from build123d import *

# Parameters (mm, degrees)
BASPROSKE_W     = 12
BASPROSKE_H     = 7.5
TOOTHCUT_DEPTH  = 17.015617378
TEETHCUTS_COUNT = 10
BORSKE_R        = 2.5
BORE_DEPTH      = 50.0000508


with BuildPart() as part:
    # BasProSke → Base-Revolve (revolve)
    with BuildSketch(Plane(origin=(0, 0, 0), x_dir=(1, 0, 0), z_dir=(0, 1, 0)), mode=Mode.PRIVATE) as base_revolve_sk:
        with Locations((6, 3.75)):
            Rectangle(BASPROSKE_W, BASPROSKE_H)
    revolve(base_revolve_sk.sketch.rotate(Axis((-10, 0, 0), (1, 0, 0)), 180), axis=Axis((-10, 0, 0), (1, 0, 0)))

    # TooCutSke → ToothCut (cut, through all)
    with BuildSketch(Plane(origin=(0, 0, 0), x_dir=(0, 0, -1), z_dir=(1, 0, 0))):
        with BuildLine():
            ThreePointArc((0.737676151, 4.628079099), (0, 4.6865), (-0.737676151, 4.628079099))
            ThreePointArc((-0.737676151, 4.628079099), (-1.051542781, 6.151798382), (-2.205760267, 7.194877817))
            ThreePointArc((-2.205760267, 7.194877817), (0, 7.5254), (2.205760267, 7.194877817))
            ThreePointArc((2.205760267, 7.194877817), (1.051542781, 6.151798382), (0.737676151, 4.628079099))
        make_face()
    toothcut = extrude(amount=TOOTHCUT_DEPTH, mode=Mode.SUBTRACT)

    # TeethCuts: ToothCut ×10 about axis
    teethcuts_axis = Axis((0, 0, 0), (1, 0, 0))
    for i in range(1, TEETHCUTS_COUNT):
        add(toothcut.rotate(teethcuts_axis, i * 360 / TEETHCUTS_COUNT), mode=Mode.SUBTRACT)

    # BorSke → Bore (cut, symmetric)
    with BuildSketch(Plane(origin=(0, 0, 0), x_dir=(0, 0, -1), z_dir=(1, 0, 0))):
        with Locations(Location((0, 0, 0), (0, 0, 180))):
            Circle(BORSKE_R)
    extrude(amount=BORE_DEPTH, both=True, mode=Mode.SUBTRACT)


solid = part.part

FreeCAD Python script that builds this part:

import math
import FreeCAD as App
import Part
import Sketcher

doc = App.newDocument("Part")
body = doc.addObject("PartDesign::Body", "Body")

sketch1 = doc.addObject("Sketcher::SketchObject", "Sketch")
body.addObject(sketch1)
sketch1.AttachmentSupport = (doc.XZ_Plane, [""])
sketch1.MapMode = "FlatFace"
sketch1.addGeometry(Part.LineSegment(App.Vector(0, -8, 0), App.Vector(0, 0, 0)), False)
sketch1.addGeometry(Part.LineSegment(App.Vector(0, 0, 0), App.Vector(12, 0, 0)), False)
sketch1.addGeometry(Part.LineSegment(App.Vector(12, 0, 0), App.Vector(12, -8, 0)), False)
sketch1.addGeometry(Part.LineSegment(App.Vector(12, -8, 0), App.Vector(0, -8, 0)), False)
sketch1.addConstraint(Sketcher.Constraint("Coincident", 0, 2, 1, 1))
sketch1.addConstraint(Sketcher.Constraint("Coincident", 1, 2, 2, 1))
sketch1.addConstraint(Sketcher.Constraint("Coincident", 2, 2, 3, 1))
sketch1.addConstraint(Sketcher.Constraint("Coincident", 3, 2, 0, 1))
sketch1.addConstraint(Sketcher.Constraint("Vertical", 0))
sketch1.addConstraint(Sketcher.Constraint("Horizontal", 1))
sketch1.addConstraint(Sketcher.Constraint("Vertical", 2))
sketch1.addConstraint(Sketcher.Constraint("Horizontal", 3))
sketch1.addConstraint(Sketcher.Constraint("Coincident", 0, 2, -1, 1))
sketch1.addConstraint(Sketcher.Constraint("DistanceX", 1, 1, 1, 2, 12.0))
sketch1.addConstraint(Sketcher.Constraint("DistanceY", 0, 1, 0, 2, 7.5))
revolution = doc.addObject("PartDesign::Revolution", "Revolution")
body.addObject(revolution)
revolution.Profile = sketch1
revolution.ReferenceAxis = (sketch1, ["H_Axis"])
revolution.Angle = 360

sketch2 = doc.addObject("Sketcher::SketchObject", "Sketch001")
body.addObject(sketch2)
sketch2.AttachmentSupport = (doc.YZ_Plane, [""])
sketch2.MapMode = "FlatFace"
sketch2.addGeometry(Part.ArcOfCircle(Part.Circle(App.Vector(0, 0, 0), App.Vector(0, 0, 1), 4.7), math.radians(-9.06), math.radians(9.06)), False)
sketch2.addGeometry(Part.ArcOfCircle(Part.Circle(App.Vector(4.9, -3.2, 0), App.Vector(0, 0, 1), 2.5), math.radians(24), math.radians(96)), False)
sketch2.addGeometry(Part.ArcOfCircle(Part.Circle(App.Vector(0, 0, 0), App.Vector(0, 0, 1), 7.5), math.radians(-17), math.radians(17)), False)
sketch2.addGeometry(Part.ArcOfCircle(Part.Circle(App.Vector(4.9, 3.2, 0), App.Vector(0, 0, 1), 2.5), math.radians(-96), math.radians(-24)), False)
sketch2.addConstraint(Sketcher.Constraint("Coincident", 0, 1, 1, 2))
sketch2.addConstraint(Sketcher.Constraint("Coincident", 1, 1, 2, 1))
sketch2.addConstraint(Sketcher.Constraint("Coincident", 2, 2, 3, 2))
sketch2.addConstraint(Sketcher.Constraint("Coincident", 3, 1, 0, 2))
sketch2.addConstraint(Sketcher.Constraint("Coincident", 0, 3, -1, 1))
sketch2.addConstraint(Sketcher.Constraint("Coincident", 2, 3, -1, 1))
sketch2.addConstraint(Sketcher.Constraint("Equal", 1, 3))
sketch2.addConstraint(Sketcher.Constraint("Symmetric", 1, 3, 3, 3, -1))
sketch2.addConstraint(Sketcher.Constraint("Radius", 1, 2.5))
sketch2.addConstraint(Sketcher.Constraint("Radius", 0, 4.6865))
sketch2.addConstraint(Sketcher.Constraint("Radius", 2, 7.5254))
sketch2.addConstraint(Sketcher.Constraint("DistanceY", 1, 3, 1, 1, 1.015901))
sketch2.addConstraint(Sketcher.Constraint("DistanceX", 0, 1, 1, 1, 2.566799))
pocket1 = doc.addObject("PartDesign::Pocket", "Pocket")
body.addObject(pocket1)
pocket1.Profile = sketch2
pocket1.Type = "ThroughAll"
pocket1.Reversed = True
doc.recompute()

polarpattern = doc.addObject("PartDesign::PolarPattern", "PolarPattern")
body.addObject(polarpattern)
polarpattern.Originals = [pocket1]
polarpattern.Axis = (doc.X_Axis, [""])
polarpattern.Angle = 360
polarpattern.Occurrences = 10
body.Tip = polarpattern

sketch3 = doc.addObject("Sketcher::SketchObject", "Sketch002")
body.addObject(sketch3)
sketch3.AttachmentSupport = (doc.YZ_Plane, [""])
sketch3.MapMode = "FlatFace"
sketch3.addGeometry(Part.Circle(App.Vector(0, 0, 0), App.Vector(0, 0, 1), 2.5), False)
sketch3.addConstraint(Sketcher.Constraint("Coincident", 0, 3, -1, 1))
sketch3.addConstraint(Sketcher.Constraint("Diameter", 0, 5.0))
pocket2 = doc.addObject("PartDesign::Pocket", "Pocket001")
body.addObject(pocket2)
pocket2.Profile = sketch3
pocket2.Length = 100.000102
pocket2.Midplane = True

doc.recompute()
